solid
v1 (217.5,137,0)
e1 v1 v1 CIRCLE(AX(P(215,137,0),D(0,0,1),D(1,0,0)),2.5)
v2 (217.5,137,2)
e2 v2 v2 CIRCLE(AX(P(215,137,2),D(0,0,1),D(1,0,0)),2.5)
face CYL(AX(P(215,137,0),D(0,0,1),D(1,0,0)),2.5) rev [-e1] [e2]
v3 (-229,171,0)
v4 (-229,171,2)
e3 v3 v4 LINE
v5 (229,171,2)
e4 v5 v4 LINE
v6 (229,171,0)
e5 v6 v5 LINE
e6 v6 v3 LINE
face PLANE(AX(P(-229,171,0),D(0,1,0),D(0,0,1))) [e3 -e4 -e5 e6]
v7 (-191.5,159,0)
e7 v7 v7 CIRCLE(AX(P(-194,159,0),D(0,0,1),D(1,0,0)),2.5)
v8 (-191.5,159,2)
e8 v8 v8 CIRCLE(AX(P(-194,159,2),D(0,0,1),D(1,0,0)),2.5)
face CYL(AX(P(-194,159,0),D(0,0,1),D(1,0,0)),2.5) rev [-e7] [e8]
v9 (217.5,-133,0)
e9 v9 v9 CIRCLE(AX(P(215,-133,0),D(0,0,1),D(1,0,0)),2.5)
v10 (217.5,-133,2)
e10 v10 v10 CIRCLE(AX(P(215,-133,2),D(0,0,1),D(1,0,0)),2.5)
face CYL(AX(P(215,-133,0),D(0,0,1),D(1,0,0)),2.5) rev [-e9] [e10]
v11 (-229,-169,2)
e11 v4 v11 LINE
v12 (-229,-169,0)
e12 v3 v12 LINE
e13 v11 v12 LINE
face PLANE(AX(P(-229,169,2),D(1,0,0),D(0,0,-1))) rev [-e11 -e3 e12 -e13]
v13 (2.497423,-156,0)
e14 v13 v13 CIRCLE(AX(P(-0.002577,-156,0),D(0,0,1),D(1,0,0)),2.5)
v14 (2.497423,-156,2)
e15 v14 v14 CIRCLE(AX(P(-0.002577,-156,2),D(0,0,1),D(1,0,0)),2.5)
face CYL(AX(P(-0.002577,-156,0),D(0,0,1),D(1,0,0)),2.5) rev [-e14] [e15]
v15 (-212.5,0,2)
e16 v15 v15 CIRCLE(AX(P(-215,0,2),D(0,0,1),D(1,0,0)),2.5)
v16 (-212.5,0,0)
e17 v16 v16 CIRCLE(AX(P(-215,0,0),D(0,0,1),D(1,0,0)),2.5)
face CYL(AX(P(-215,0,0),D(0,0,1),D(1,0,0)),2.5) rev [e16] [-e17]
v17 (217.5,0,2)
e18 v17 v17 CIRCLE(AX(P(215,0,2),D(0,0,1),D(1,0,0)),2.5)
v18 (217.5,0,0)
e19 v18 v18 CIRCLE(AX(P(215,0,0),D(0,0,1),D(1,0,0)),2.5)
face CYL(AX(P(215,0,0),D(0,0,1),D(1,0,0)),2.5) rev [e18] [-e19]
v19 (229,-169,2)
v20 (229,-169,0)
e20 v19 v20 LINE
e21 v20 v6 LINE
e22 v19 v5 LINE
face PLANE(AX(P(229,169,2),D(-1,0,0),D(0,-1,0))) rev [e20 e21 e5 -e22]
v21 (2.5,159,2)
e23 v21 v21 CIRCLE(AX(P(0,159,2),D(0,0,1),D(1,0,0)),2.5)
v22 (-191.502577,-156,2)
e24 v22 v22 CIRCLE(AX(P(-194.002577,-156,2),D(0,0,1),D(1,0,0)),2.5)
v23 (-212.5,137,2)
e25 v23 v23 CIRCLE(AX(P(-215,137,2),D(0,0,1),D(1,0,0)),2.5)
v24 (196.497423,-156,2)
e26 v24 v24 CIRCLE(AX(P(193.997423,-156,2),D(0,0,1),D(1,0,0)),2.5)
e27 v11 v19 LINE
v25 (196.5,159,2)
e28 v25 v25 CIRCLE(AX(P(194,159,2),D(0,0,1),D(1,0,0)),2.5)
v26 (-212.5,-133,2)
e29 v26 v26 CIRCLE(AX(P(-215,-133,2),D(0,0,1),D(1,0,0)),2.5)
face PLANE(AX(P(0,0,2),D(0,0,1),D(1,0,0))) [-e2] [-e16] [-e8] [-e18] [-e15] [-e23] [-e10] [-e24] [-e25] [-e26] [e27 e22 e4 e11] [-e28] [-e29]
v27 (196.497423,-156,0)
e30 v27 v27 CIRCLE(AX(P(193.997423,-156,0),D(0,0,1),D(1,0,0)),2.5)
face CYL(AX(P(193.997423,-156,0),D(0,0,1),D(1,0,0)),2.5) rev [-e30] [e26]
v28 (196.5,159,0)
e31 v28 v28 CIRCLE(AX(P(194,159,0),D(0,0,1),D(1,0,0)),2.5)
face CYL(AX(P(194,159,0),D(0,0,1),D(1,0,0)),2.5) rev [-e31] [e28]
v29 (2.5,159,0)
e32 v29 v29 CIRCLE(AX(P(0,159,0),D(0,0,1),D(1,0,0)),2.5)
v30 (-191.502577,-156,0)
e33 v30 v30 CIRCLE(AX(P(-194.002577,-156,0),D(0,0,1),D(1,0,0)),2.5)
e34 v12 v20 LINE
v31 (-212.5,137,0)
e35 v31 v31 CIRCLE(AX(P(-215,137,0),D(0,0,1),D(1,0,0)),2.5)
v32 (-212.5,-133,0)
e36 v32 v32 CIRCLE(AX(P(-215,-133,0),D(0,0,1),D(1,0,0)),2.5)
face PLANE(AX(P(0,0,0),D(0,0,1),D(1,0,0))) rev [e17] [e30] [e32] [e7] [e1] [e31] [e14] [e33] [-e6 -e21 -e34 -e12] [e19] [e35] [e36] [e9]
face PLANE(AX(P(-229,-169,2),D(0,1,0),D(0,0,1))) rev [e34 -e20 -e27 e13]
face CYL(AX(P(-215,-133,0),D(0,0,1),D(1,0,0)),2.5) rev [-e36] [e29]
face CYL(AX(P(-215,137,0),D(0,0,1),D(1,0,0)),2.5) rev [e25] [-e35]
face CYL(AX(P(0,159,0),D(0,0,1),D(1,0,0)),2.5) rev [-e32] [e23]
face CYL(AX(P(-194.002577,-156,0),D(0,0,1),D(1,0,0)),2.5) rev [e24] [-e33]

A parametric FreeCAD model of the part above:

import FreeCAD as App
import Part
import Sketcher
from FreeCAD import Vector
Q = App.Units.Quantity


def add_polygon(sketch, points):
    """Adds a closed chain of lines whose ends are joined by coincident constraints."""
    first, n = sketch.GeometryCount, len(points)
    for a, b in zip(points, points[1:] + points[:1]):
        sketch.addGeometry(Part.LineSegment(App.Vector(*a, 0), App.Vector(*b, 0)), False)
    for i in range(n):
        sketch.addConstraint(Sketcher.Constraint("Coincident", first + i, 2, first + (i + 1) % n, 1))

doc = App.newDocument("Part")
body = doc.addObject("PartDesign::Body", "Body")

sketch1 = body.newObject("Sketcher::SketchObject", "Sketch")
sketch1.AttachmentSupport = (doc.getObject("XY_Plane"), [""])
sketch1.MapMode = "FlatFace"
add_polygon(sketch1, [(-229, 169), (-229, -169), (229, -169), (229, 169)])
sketch1.addConstraint([
    Sketcher.Constraint("Vertical", 0),
    Sketcher.Constraint("Horizontal", 1),
    Sketcher.Constraint("Vertical", 2),
    Sketcher.Constraint("Horizontal", 3),
    Sketcher.Constraint("Symmetric", 0, 2, 2, 2, -1, 1),
    Sketcher.Constraint("DistanceX", 1, 1, 1, 2, Q("458 mm")),
    Sketcher.Constraint("DistanceY", 0, 2, 0, 1, Q("338 mm")),
])
pad1 = body.newObject("PartDesign::Pad", "Pad")
pad1.Profile = sketch1
pad1.Length = 2

sketch2 = body.newObject("Sketcher::SketchObject", "Sketch001")
sketch2.AttachmentSupport = (doc.getObject("XY_Plane"), [""])
sketch2.MapMode = "FlatFace"
sketch2.AttachmentOffset = App.Placement(Vector(0, 0, 2), App.Rotation())
sketch2.addGeometry([
    Part.Circle(Vector(-194, 159, 0), Vector(0, 0, 1), 2.5),
    Part.Circle(Vector(-194, -156, 0), Vector(0, 0, 1), 2.5),
    Part.Circle(Vector(194, -156, 0), Vector(0, 0, 1), 2.5),
    Part.Circle(Vector(194, 159, 0), Vector(0, 0, 1), 2.5),
    Part.Circle(Vector(-215, 0, 0), Vector(0, 0, 1), 2.5),
    Part.Circle(Vector(-215, -133, 0), Vector(0, 0, 1), 2.5),
    Part.Circle(Vector(-215, 137, 0), Vector(0, 0, 1), 2.5),
    Part.Circle(Vector(215, 0, 0), Vector(0, 0, 1), 2.5),
    Part.Circle(Vector(215, -133, 0), Vector(0, 0, 1), 2.5),
    Part.Circle(Vector(215, 137, 0), Vector(0, 0, 1), 2.5),
    Part.Circle(Vector(0, 159, 0), Vector(0, 0, 1), 2.5),
    Part.Circle(Vector(0, -156, 0), Vector(0, 0, 1), 2.5),
], False)
sketch2.addConstraint([
    Sketcher.Constraint("Equal", 0, 1),
    Sketcher.Constraint("Equal", 1, 2),
    Sketcher.Constraint("Equal", 2, 3),
    Sketcher.Constraint("Equal", 3, 4),
    Sketcher.Constraint("Equal", 4, 5),
    Sketcher.Constraint("Equal", 5, 6),
    Sketcher.Constraint("Equal", 6, 7),
    Sketcher.Constraint("Equal", 7, 8),
    Sketcher.Constraint("Equal", 8, 9),
    Sketcher.Constraint("Equal", 9, 10),
    Sketcher.Constraint("Equal", 10, 11),
    Sketcher.Constraint("Symmetric", 4, 3, 7, 3, -1, 1),
    Sketcher.Constraint("Symmetric", 0, 3, 3, 3, -2),
    Sketcher.Constraint("Symmetric", 5, 3, 8, 3, -2),
    Sketcher.Constraint("Symmetric", 6, 3, 9, 3, -2),
    Sketcher.Constraint("PointOnObject", 4, 3, -1),
    Sketcher.Constraint("PointOnObject", 10, 3, -2),
    Sketcher.Constraint("Horizontal", 1, 3, 2, 3),
    Sketcher.Constraint("Horizontal", 3, 3, 10, 3),
    Sketcher.Constraint("Horizontal", 2, 3, 11, 3),
    Sketcher.Constraint("Vertical", 4, 3, 5, 3),
    Sketcher.Constraint("Vertical", 5, 3, 6, 3),
    Sketcher.Constraint("Diameter", 0, Q("5 mm")),
    Sketcher.Constraint("DistanceX", 0, 3, -1, 1, Q("194 mm")),
    Sketcher.Constraint("DistanceY", -1, 1, 0, 3, Q("159 mm")),
    Sketcher.Constraint("DistanceY", 1, 3, -1, 1, Q("156 mm")),
    Sketcher.Constraint("DistanceX", 4, 3, -1, 1, Q("215 mm")),
    Sketcher.Constraint("DistanceY", 5, 3, -1, 1, Q("133 mm")),
    Sketcher.Constraint("DistanceY", -1, 1, 6, 3, Q("137 mm")),
    Sketcher.Constraint("DistanceX", 1, 3, 2, 3, Q("388 mm")),
    Sketcher.Constraint("DistanceX", 1, 3, 11, 3, Q("194 mm")),
    Sketcher.Constraint("DistanceX", 1, 3, -1, 1, Q("194.002577 mm")),
])
pocket1 = body.newObject("PartDesign::Pocket", "Pocket")
pocket1.Profile = sketch2
pocket1.Type = "ThroughAll"

sketch3 = body.newObject("Sketcher::SketchObject", "Sketch002")
sketch3.AttachmentSupport = (doc.getObject("XY_Plane"), [""])
sketch3.MapMode = "FlatFace"
sketch3.AttachmentOffset = App.Placement(Vector(0, 0, 2), App.Rotation())
add_polygon(sketch3, [(-229, 171), (-229, 169), (229, 169), (229, 171)])
sketch3.addConstraint([
    Sketcher.Constraint("Vertical", 0),
    Sketcher.Constraint("Horizontal", 1),
    Sketcher.Constraint("Vertical", 2),
    Sketcher.Constraint("Horizontal", 3),
    Sketcher.Constraint("DistanceX", 1, 1, 1, 2, Q("458 mm")),
    Sketcher.Constraint("DistanceY", 0, 2, 0, 1, Q("2 mm")),
    Sketcher.Constraint("DistanceX", 0, 2, -1, 1, Q("229 mm")),
    Sketcher.Constraint("DistanceY", -1, 1, 0, 2, Q("169 mm")),
])
pad2 = body.newObject("PartDesign::Pad", "Pad001")
pad2.Profile = sketch3
pad2.Length = 2
pad2.Reversed = True

doc.recompute()
